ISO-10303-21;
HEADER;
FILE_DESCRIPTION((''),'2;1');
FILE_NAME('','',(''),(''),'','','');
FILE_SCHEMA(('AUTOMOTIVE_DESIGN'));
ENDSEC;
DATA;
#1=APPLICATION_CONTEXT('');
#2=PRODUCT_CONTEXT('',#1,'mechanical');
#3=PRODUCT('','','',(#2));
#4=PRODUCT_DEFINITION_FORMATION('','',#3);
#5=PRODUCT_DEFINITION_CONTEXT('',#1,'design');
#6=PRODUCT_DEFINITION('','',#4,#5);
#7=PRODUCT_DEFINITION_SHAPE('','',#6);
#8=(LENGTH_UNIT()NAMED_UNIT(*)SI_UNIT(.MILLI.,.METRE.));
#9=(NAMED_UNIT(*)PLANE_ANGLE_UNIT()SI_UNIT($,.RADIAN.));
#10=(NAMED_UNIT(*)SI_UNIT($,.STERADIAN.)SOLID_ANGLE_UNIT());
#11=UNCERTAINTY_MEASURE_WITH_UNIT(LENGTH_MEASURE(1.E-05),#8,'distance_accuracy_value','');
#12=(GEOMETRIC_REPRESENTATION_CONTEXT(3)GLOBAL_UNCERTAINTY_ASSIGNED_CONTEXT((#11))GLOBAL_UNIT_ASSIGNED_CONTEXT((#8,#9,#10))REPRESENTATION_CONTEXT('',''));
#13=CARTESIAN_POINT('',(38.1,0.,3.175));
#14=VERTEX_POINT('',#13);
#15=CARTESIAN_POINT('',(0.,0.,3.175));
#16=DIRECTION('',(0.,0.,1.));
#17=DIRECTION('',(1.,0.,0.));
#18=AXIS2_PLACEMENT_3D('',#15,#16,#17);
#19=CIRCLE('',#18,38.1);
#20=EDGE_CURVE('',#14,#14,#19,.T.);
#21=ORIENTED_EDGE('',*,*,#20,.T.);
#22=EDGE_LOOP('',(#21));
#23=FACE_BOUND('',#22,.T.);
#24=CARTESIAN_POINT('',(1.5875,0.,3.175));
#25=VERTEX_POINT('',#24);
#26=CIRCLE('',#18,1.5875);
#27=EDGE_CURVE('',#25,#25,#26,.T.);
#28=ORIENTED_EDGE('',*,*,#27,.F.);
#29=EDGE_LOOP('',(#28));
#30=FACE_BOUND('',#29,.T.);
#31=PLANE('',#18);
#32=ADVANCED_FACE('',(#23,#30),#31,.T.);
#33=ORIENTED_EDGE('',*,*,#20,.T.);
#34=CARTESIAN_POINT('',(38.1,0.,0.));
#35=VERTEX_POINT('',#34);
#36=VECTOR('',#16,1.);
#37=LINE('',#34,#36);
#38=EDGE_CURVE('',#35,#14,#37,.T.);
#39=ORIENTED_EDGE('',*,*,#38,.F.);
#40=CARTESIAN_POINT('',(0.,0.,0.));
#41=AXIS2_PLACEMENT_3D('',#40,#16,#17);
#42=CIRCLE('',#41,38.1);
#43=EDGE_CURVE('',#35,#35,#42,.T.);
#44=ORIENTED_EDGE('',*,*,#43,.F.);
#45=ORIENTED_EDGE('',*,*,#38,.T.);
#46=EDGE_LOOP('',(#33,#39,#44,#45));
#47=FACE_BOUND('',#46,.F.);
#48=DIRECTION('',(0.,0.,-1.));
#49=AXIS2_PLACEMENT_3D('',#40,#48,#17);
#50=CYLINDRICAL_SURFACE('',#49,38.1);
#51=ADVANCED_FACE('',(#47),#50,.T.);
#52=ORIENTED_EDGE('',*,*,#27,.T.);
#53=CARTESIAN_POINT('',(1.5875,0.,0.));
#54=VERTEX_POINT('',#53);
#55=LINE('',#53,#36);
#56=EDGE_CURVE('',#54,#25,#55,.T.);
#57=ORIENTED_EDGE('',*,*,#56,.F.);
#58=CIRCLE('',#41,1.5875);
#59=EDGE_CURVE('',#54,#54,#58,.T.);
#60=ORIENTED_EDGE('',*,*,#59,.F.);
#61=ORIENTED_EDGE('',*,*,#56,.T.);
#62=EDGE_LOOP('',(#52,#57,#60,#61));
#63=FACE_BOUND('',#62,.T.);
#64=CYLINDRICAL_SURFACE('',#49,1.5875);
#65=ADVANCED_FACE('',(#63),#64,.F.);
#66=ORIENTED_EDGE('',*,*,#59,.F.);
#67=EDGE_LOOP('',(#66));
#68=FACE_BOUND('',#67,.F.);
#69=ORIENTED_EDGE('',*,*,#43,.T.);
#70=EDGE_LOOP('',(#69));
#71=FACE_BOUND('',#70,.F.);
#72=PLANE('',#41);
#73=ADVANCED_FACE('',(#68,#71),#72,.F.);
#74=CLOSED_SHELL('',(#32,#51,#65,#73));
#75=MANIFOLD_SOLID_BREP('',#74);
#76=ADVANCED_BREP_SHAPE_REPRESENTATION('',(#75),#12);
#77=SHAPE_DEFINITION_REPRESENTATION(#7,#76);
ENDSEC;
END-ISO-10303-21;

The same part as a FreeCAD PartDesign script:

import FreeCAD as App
import Part
import Sketcher
from FreeCAD import Vector
Q = App.Units.Quantity

doc = App.newDocument("Part")
params = doc.addObject("Spreadsheet::Sheet", "Params")
for row, (alias, value) in enumerate([
    ("sketch1_diameter", "3 in"),
    ("sketch1_diameter2", "0.125 in"),
    ("pad1_length", "0.125 in"),
    ("sketch2_diameter", "0.125 in"),
    ("pocket1_length", "0.125 in"),
], start=1):
    params.set(f"A{row}", alias)
    params.set(f"B{row}", "=" + value)
    params.setAlias(f"B{row}", alias)

body = doc.addObject("PartDesign::Body", "Body")

sketch1 = body.newObject("Sketcher::SketchObject", "Sketch")
sketch1.AttachmentSupport = (doc.getObject("XY_Plane"), [""])
sketch1.MapMode = "FlatFace"
sketch1.addGeometry(Part.Circle(Vector(0, 0, 0), Vector(0, 0, 1), 38.1), False)
sketch1.addGeometry(Part.Circle(Vector(0, 0, 0), Vector(0, 0, 1), 1.5875), False)
sketch1.addConstraint(Sketcher.Constraint("Coincident", 0, 3, -1, 1))
sketch1.addConstraint(Sketcher.Constraint("Coincident", 1, 3, -1, 1))
sketch1.addConstraint(Sketcher.Constraint("Diameter", 0, Q("3 in")))
sketch1.addConstraint(Sketcher.Constraint("Diameter", 1, Q("0.125 in")))
sketch1.setExpression("Constraints[2]", "Params.sketch1_diameter")
sketch1.setExpression("Constraints[3]", "Params.sketch1_diameter2")
pad1 = body.newObject("PartDesign::Pad", "Pad")
pad1.Profile = sketch1
pad1.setExpression("Length", "Params.pad1_length")

sketch2 = body.newObject("Sketcher::SketchObject", "Sketch001")
sketch2.AttachmentSupport = (doc.getObject("XY_Plane"), [""])
sketch2.MapMode = "FlatFace"
sketch2.addGeometry(Part.Circle(Vector(0, 0, 0), Vector(0, 0, 1), 1.5875), False)
sketch2.addConstraint(Sketcher.Constraint("Coincident", 0, 3, -1, 1))
sketch2.addConstraint(Sketcher.Constraint("Diameter", 0, Q("0.125 in")))
sketch2.setExpression("Constraints[1]", "Params.sketch2_diameter")
pocket1 = body.newObject("PartDesign::Pocket", "Pocket")
pocket1.Profile = sketch2
pocket1.setExpression("Length", "Params.pocket1_length")

doc.recompute()
